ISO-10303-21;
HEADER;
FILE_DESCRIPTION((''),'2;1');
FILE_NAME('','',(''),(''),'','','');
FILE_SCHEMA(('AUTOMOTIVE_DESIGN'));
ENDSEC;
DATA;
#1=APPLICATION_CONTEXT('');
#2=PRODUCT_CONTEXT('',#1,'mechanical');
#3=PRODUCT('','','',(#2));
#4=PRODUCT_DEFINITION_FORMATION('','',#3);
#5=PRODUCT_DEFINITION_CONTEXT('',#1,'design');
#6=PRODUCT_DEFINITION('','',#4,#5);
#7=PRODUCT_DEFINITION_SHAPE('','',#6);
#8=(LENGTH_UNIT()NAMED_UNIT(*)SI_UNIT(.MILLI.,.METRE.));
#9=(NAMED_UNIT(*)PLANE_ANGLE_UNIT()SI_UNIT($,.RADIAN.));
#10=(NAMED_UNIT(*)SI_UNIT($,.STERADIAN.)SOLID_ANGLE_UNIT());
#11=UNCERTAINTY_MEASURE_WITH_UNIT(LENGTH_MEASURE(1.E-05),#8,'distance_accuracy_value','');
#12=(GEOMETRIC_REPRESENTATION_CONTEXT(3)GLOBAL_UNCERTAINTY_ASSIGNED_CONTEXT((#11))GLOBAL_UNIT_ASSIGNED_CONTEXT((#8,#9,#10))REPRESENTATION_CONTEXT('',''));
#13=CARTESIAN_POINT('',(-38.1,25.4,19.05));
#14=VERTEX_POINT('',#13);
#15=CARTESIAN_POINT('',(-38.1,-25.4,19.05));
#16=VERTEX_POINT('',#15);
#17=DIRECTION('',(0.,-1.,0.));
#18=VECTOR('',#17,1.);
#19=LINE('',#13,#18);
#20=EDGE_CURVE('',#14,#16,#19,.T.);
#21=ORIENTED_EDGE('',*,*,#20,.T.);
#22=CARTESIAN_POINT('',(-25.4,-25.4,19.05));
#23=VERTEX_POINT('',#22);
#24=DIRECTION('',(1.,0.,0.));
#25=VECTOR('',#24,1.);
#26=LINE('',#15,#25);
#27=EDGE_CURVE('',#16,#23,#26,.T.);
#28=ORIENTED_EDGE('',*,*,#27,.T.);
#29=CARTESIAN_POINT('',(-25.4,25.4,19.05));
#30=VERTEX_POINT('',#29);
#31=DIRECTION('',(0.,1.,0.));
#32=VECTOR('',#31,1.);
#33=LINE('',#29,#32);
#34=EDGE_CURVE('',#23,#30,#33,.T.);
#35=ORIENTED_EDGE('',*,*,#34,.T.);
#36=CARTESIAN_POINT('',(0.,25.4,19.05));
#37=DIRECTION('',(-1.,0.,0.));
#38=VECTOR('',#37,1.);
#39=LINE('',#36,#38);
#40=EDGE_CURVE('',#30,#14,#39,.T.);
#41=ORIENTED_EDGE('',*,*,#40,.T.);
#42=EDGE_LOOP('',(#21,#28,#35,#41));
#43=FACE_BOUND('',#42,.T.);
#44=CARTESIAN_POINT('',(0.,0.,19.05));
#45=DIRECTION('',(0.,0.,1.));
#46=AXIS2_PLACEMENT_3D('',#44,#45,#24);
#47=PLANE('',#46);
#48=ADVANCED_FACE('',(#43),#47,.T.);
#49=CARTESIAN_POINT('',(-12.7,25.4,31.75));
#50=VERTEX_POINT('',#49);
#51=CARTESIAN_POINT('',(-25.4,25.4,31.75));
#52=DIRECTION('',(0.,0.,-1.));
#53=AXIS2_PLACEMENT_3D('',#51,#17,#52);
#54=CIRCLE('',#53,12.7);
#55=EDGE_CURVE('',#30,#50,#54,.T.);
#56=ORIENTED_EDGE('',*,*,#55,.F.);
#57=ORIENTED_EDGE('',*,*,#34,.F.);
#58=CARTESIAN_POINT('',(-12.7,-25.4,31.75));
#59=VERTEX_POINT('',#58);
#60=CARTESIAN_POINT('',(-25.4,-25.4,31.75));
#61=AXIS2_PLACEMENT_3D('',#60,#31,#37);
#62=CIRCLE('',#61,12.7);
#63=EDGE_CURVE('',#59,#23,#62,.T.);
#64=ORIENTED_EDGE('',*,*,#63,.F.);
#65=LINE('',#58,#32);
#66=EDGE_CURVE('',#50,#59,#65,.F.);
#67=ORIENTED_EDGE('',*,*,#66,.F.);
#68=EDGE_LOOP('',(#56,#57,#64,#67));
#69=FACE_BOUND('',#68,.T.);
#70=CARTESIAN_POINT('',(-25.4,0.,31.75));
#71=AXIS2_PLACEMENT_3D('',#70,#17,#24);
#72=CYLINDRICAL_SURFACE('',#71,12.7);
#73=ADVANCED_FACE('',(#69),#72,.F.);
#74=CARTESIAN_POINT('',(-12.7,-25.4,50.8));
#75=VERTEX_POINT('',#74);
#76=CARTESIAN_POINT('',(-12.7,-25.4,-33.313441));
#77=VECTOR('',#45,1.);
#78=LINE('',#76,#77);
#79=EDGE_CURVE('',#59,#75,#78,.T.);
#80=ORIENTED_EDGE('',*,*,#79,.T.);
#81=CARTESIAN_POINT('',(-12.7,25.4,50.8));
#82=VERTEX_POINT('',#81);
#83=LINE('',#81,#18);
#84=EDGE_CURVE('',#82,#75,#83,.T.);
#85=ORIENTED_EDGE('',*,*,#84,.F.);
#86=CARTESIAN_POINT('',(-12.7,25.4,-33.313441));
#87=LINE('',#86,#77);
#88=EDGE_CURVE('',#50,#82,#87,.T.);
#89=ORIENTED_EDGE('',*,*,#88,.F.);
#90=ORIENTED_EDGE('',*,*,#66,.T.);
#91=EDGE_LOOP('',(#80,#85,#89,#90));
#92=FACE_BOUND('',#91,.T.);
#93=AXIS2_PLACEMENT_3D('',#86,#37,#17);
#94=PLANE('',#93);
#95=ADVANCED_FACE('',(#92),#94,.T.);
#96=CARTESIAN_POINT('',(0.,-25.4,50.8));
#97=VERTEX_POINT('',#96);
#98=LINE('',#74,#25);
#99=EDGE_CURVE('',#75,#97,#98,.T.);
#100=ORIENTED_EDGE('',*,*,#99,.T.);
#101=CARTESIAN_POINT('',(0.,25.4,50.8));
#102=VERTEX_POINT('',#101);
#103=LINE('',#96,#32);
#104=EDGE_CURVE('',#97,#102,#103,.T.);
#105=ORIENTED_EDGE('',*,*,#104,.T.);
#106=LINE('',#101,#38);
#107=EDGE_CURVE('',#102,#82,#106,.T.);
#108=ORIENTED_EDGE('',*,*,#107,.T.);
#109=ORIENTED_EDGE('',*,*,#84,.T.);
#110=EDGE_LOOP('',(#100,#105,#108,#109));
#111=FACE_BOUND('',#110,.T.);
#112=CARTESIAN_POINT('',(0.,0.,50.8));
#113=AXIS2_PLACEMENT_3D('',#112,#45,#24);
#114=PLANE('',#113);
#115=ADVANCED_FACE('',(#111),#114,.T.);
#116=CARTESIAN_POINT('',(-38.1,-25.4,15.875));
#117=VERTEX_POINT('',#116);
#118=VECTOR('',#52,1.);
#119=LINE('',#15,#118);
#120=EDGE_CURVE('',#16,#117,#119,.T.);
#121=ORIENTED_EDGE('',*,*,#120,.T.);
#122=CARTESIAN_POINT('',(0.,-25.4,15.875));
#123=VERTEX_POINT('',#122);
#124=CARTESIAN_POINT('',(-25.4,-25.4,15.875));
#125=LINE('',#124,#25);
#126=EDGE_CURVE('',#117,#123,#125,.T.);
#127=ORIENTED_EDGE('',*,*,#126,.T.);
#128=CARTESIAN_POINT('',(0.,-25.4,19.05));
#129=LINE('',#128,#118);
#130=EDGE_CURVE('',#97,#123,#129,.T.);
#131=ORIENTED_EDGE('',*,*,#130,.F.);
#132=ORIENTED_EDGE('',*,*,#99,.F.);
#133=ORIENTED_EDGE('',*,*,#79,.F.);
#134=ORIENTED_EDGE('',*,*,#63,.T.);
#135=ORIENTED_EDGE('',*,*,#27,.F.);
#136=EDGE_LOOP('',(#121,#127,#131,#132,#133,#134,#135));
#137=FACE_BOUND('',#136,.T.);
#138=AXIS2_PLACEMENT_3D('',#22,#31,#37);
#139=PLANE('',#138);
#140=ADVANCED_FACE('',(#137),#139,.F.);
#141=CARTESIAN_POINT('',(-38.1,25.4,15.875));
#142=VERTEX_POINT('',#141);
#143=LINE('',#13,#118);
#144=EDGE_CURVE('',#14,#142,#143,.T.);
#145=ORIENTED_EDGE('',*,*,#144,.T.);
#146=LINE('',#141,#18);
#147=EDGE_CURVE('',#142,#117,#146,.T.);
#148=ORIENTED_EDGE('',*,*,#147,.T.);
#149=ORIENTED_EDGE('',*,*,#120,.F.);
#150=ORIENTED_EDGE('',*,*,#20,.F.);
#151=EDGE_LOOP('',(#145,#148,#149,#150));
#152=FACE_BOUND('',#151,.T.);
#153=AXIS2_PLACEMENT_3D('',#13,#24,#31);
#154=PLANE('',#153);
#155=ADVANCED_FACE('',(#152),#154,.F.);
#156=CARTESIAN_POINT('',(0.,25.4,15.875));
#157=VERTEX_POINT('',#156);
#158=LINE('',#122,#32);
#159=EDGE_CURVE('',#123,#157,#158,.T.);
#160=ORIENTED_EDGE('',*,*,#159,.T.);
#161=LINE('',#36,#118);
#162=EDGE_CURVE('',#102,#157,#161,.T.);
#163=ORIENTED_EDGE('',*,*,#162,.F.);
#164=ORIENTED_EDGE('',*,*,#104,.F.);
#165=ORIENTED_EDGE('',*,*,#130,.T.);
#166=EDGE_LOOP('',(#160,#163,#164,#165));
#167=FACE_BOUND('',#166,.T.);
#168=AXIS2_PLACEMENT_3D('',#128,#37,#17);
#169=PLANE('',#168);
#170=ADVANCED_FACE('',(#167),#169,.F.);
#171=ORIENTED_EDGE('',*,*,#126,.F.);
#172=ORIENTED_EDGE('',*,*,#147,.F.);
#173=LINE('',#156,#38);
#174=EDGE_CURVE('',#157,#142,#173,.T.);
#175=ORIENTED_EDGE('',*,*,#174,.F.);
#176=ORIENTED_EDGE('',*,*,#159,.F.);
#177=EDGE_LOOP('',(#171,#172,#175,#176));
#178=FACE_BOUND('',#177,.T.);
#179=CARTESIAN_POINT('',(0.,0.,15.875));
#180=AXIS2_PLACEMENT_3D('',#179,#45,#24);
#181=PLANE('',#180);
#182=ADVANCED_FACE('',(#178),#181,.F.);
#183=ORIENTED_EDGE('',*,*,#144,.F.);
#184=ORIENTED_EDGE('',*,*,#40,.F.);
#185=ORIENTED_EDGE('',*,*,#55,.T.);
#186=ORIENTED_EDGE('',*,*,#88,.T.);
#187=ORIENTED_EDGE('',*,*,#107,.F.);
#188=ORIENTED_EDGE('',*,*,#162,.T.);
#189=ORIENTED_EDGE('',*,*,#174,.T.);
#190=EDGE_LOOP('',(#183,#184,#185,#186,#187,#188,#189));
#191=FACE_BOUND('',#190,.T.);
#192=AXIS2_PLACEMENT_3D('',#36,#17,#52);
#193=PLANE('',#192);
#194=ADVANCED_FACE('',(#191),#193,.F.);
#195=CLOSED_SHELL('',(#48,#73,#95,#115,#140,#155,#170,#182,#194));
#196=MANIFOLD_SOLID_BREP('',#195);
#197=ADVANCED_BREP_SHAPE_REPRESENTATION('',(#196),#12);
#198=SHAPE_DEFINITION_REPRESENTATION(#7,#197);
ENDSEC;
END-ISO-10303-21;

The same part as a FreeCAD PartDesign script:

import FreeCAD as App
import Part
import Sketcher
from FreeCAD import Vector
Q = App.Units.Quantity


def edges_at(feature, points):
    """Names of the edges that pass closest to the given points."""
    edges = feature.Shape.Edges
    near = lambda p: min(range(len(edges)), key=lambda i: edges[i].distToShape(Part.Vertex(*p))[0])
    return sorted({f"Edge{near(p) + 1}" for p in points})


def add_polygon(sketch, points):
    """Adds a closed chain of lines whose ends are joined by coincident constraints."""
    first, n = sketch.GeometryCount, len(points)
    for a, b in zip(points, points[1:] + points[:1]):
        sketch.addGeometry(Part.LineSegment(App.Vector(*a, 0), App.Vector(*b, 0)), False)
    for i in range(n):
        sketch.addConstraint(Sketcher.Constraint("Coincident", first + i, 2, first + (i + 1) % n, 1))

doc = App.newDocument("Part")
body = doc.addObject("PartDesign::Body", "Body")

sketch1 = body.newObject("Sketcher::SketchObject", "Sketch")
sketch1.AttachmentSupport = (doc.getObject("XY_Plane"), [""])
sketch1.MapMode = "FlatFace"
sketch1.AttachmentOffset = App.Placement(Vector(0, 0, 0.625 * 25.4), App.Rotation())
add_polygon(sketch1, [(-38, 25), (-38, -25), (0, -25), (0, 25)])
sketch1.addConstraint([
    Sketcher.Constraint("Vertical", 0),
    Sketcher.Constraint("Horizontal", 1),
    Sketcher.Constraint("Vertical", 2),
    Sketcher.Constraint("Horizontal", 3),
    Sketcher.Constraint("Symmetric", 1, 2, 2, 2, -1, 1),
    Sketcher.Constraint("DistanceY", 0, 2, 0, 1, Q("2 in")),
    Sketcher.Constraint("DistanceX", 1, 1, 1, 2, Q("1.5 in")),
])
pad1 = body.newObject("PartDesign::Pad", "Pad")
pad1.Profile = sketch1
pad1.Length = Q("0.125 in")

sketch2 = body.newObject("Sketcher::SketchObject", "Sketch001")
sketch2.AttachmentSupport = (doc.getObject("XY_Plane"), [""])
sketch2.MapMode = "FlatFace"
sketch2.AttachmentOffset = App.Placement(Vector(0, 0, 2 * 25.4), App.Rotation())
add_polygon(sketch2, [(-13, 25), (-13, -25), (0, -25), (0, 25)])
sketch2.addConstraint([
    Sketcher.Constraint("Vertical", 0),
    Sketcher.Constraint("Horizontal", 1),
    Sketcher.Constraint("Vertical", 2),
    Sketcher.Constraint("Horizontal", 3),
    Sketcher.Constraint("Symmetric", 1, 2, 2, 2, -1, 1),
    Sketcher.Constraint("DistanceY", 0, 2, 0, 1, Q("2 in")),
    Sketcher.Constraint("DistanceX", 1, 1, 1, 2, Q("0.5 in")),
])
pad2 = body.newObject("PartDesign::Pad", "Pad001")
pad2.Profile = sketch2
pad2.Length = Q("1.25 in")
pad2.Reversed = True
doc.recompute()

fillet = body.newObject("PartDesign::Fillet", "Fillet")
fillet.Base = (pad2, edges_at(pad2, [(-12.7, 0, 19.05)]))
fillet.Radius = Q("0.5 in")

doc.recompute()
